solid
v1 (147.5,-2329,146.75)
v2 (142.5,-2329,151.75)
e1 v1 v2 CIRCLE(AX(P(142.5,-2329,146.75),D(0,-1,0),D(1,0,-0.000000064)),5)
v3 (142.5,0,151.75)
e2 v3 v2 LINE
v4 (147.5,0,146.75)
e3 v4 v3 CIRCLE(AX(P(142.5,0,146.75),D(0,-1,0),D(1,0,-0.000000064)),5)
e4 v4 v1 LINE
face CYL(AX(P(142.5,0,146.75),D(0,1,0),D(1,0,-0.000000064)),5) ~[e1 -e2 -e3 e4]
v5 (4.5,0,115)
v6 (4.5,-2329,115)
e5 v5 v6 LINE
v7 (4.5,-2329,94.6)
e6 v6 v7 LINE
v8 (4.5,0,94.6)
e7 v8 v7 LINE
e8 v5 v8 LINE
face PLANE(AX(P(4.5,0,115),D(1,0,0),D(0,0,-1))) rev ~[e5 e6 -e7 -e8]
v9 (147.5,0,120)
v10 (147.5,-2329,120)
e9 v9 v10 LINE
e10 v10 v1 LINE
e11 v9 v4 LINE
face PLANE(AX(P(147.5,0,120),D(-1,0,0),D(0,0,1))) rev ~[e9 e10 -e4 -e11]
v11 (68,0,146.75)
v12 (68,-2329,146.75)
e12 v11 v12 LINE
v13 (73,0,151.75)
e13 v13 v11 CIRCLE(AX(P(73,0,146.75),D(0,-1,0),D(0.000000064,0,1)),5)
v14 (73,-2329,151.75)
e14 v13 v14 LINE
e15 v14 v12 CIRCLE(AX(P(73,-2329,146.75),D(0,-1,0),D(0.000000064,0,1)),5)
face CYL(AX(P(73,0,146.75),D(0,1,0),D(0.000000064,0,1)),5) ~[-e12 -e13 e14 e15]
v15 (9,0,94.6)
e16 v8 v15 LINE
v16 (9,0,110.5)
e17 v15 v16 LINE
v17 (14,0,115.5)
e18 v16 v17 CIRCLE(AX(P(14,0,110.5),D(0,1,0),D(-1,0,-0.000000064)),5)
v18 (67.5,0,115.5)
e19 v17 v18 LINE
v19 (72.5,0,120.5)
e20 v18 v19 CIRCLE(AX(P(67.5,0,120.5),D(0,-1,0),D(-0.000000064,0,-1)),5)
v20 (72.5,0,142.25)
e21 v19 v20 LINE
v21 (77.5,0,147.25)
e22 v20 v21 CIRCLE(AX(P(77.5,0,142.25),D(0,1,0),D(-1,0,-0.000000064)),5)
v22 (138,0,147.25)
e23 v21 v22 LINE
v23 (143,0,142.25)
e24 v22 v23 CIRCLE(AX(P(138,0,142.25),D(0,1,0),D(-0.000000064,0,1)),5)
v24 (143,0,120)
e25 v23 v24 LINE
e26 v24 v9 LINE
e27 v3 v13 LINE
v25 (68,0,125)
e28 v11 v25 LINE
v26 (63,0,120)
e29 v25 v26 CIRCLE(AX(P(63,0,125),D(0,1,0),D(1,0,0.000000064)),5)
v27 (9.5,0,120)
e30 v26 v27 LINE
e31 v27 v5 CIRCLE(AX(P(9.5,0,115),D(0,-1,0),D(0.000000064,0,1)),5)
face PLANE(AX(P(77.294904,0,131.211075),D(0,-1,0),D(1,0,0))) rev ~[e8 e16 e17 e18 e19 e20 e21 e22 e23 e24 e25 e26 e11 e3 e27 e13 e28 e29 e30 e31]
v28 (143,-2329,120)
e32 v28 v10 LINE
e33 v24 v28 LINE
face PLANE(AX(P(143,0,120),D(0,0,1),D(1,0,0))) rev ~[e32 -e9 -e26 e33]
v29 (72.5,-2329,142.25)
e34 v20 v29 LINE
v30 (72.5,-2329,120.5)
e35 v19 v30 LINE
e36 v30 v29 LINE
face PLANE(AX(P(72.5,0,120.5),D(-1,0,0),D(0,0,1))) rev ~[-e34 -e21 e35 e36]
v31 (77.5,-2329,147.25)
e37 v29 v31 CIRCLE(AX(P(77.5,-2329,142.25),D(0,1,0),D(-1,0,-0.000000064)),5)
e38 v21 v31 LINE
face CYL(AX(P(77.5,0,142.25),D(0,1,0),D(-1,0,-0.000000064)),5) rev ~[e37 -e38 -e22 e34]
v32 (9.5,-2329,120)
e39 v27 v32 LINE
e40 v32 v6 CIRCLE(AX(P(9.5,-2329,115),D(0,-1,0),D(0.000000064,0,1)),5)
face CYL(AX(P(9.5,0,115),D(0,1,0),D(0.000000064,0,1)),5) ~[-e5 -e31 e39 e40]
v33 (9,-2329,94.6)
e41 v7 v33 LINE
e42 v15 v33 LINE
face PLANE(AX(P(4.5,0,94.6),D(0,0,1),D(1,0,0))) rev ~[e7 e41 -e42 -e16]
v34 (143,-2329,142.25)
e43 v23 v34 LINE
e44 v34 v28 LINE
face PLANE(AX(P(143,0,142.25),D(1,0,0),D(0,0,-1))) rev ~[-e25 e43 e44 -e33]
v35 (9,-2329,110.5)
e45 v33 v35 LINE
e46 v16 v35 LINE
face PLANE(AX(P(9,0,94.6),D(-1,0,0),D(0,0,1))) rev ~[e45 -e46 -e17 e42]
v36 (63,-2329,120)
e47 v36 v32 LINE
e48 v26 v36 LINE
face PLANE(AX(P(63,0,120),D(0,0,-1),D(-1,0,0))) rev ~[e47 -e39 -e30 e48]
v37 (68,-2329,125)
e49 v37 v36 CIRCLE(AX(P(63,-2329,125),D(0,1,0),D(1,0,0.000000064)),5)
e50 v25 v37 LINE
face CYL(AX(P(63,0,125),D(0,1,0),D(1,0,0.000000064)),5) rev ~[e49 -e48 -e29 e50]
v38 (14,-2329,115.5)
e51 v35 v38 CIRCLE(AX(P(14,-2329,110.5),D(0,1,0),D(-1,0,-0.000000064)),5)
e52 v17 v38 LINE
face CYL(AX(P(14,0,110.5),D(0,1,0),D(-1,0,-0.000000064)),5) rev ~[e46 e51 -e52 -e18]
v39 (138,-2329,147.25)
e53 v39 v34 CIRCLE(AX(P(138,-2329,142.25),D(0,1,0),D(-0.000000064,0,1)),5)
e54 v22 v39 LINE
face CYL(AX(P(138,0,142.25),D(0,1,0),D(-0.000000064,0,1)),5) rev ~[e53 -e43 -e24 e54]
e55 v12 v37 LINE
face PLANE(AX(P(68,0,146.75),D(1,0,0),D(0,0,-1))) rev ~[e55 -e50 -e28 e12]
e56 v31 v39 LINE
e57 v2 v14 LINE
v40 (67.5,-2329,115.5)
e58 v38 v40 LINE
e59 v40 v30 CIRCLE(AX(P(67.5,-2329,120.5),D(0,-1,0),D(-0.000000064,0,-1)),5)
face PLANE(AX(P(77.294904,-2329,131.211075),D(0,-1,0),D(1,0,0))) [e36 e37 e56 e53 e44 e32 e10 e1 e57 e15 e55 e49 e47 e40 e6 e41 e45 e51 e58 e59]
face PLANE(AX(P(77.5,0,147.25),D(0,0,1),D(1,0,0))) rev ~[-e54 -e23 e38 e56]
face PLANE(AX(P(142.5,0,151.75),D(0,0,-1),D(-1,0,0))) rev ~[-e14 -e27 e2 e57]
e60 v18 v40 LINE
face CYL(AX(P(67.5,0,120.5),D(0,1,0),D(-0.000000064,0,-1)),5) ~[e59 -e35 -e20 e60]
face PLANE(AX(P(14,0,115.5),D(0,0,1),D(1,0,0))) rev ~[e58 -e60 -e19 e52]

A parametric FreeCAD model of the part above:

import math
import FreeCAD as App
import Part
import Sketcher

V = App.Vector
Q = App.Units.Quantity

doc = App.newDocument("Part")
body = doc.addObject("PartDesign::Body", "Body")

# Sketch on XZ plane
sketch1 = doc.addObject("Sketcher::SketchObject", "Sketch")
body.addObject(sketch1)
sketch1.AttachmentSupport = (doc.XZ_Plane, [""])
sketch1.MapMode = "FlatFace"
sketch1.addGeometry([
    Part.LineSegment(V(147.5, 120, 0), V(147.5, 146.8, 0)),  # 0
    Part.ArcOfCircle(Part.Circle(V(142.5, 146.8, 0), V(0, 0, 1), 5), math.radians(0), math.radians(90)),  # 1
    Part.LineSegment(V(142.5, 151.8, 0), V(73, 151.8, 0)),  # 2
    Part.ArcOfCircle(Part.Circle(V(73, 146.8, 0), V(0, 0, 1), 5), math.radians(90), math.radians(180)),  # 3
    Part.LineSegment(V(68, 146.8, 0), V(68, 125, 0)),  # 4
    Part.ArcOfCircle(Part.Circle(V(63, 125, 0), V(0, 0, 1), 5), math.radians(-90), math.radians(0)),  # 5
    Part.LineSegment(V(63, 120, 0), V(9.5, 120, 0)),  # 6
    Part.ArcOfCircle(Part.Circle(V(9.5, 115, 0), V(0, 0, 1), 5), math.radians(90), math.radians(180)),  # 7
    Part.LineSegment(V(4.5, 115, 0), V(4.5, 94.6, 0)),  # 8
    Part.LineSegment(V(4.5, 94.6, 0), V(9, 94.6, 0)),  # 9
    Part.LineSegment(V(9, 94.6, 0), V(9, 110.5, 0)),  # 10
    Part.ArcOfCircle(Part.Circle(V(14, 110.5, 0), V(0, 0, 1), 5), math.radians(90), math.radians(180)),  # 11
    Part.LineSegment(V(14, 115.5, 0), V(67.5, 115.5, 0)),  # 12
    Part.ArcOfCircle(Part.Circle(V(67.5, 120.5, 0), V(0, 0, 1), 5), math.radians(-90), math.radians(0)),  # 13
    Part.LineSegment(V(72.5, 120.5, 0), V(72.5, 142.2, 0)),  # 14
    Part.ArcOfCircle(Part.Circle(V(77.5, 142.3, 0), V(0, 0, 1), 5), math.radians(90), math.radians(180)),  # 15
    Part.LineSegment(V(77.5, 147.2, 0), V(138, 147.2, 0)),  # 16
    Part.ArcOfCircle(Part.Circle(V(138, 142.3, 0), V(0, 0, 1), 5), math.radians(0), math.radians(90)),  # 17
    Part.LineSegment(V(143, 142.2, 0), V(143, 120, 0)),  # 18
    Part.LineSegment(V(143, 120, 0), V(147.5, 120, 0)),  # 19
], False)
sketch1.addConstraint([
    Sketcher.Constraint("Tangent", 0, 2, 1, 1),
    Sketcher.Constraint("Tangent", 1, 2, 2, 1),
    Sketcher.Constraint("Tangent", 2, 2, 3, 1),
    Sketcher.Constraint("Tangent", 3, 2, 4, 1),
    Sketcher.Constraint("Tangent", 4, 2, 5, 2),
    Sketcher.Constraint("Tangent", 5, 1, 6, 1),
    Sketcher.Constraint("Tangent", 6, 2, 7, 1),
    Sketcher.Constraint("Tangent", 7, 2, 8, 1),
    Sketcher.Constraint("Coincident", 8, 2, 9, 1),
    Sketcher.Constraint("Coincident", 9, 2, 10, 1),
    Sketcher.Constraint("Tangent", 10, 2, 11, 2),
    Sketcher.Constraint("Tangent", 11, 1, 12, 1),
    Sketcher.Constraint("Tangent", 12, 2, 13, 1),
    Sketcher.Constraint("Tangent", 13, 2, 14, 1),
    Sketcher.Constraint("Tangent", 14, 2, 15, 2),
    Sketcher.Constraint("Tangent", 15, 1, 16, 1),
    Sketcher.Constraint("Tangent", 16, 2, 17, 2),
    Sketcher.Constraint("Tangent", 17, 1, 18, 1),
    Sketcher.Constraint("Coincident", 18, 2, 19, 1),
    Sketcher.Constraint("Coincident", 19, 2, 0, 1),
    Sketcher.Constraint("Vertical", 0),
    Sketcher.Constraint("Horizontal", 2),
    Sketcher.Constraint("Vertical", 4),
    Sketcher.Constraint("Horizontal", 6),
    Sketcher.Constraint("Vertical", 8),
    Sketcher.Constraint("Horizontal", 9),
    Sketcher.Constraint("Vertical", 10),
    Sketcher.Constraint("Horizontal", 12),
    Sketcher.Constraint("Vertical", 14),
    Sketcher.Constraint("Horizontal", 16),
    Sketcher.Constraint("Vertical", 18),
    Sketcher.Constraint("Horizontal", 19),
    Sketcher.Constraint("Equal", 1, 3),
    Sketcher.Constraint("Equal", 3, 5),
    Sketcher.Constraint("Equal", 5, 7),
    Sketcher.Constraint("Equal", 7, 11),
    Sketcher.Constraint("Equal", 11, 13),
    Sketcher.Constraint("Equal", 13, 15),
    Sketcher.Constraint("Equal", 15, 17),
    Sketcher.Constraint("Horizontal", 6, 2, 18, 2),
    Sketcher.Constraint("Equal", 6, 12),
    Sketcher.Constraint("Equal", 9, 19),
    Sketcher.Constraint("Equal", 4, 14),
    Sketcher.Constraint("Radius", 1, Q("5 mm")),
    Sketcher.Constraint("DistanceX", 2, 2, 2, 1, Q("69.5 mm")),
    Sketcher.Constraint("DistanceX", 6, 2, 6, 1, Q("53.5 mm")),
    Sketcher.Constraint("DistanceX", 9, 1, 9, 2, Q("4.5 mm")),
    Sketcher.Constraint("DistanceY", 8, 2, 8, 1, Q("20.4 mm")),
    Sketcher.Constraint("DistanceY", 10, 1, 10, 2, Q("15.9 mm")),
    Sketcher.Constraint("DistanceX", -1, 1, 3, 3, Q("73 mm")),
    Sketcher.Constraint("DistanceY", -1, 1, 5, 3, Q("125 mm")),
    Sketcher.Constraint("DistanceY", 0, 1, 0, 2, Q("26.75 mm")),
])
pad1 = doc.addObject("PartDesign::Pad", "Pad")
body.addObject(pad1)
pad1.Profile = sketch1
pad1.Length = 2329

doc.recompute()
